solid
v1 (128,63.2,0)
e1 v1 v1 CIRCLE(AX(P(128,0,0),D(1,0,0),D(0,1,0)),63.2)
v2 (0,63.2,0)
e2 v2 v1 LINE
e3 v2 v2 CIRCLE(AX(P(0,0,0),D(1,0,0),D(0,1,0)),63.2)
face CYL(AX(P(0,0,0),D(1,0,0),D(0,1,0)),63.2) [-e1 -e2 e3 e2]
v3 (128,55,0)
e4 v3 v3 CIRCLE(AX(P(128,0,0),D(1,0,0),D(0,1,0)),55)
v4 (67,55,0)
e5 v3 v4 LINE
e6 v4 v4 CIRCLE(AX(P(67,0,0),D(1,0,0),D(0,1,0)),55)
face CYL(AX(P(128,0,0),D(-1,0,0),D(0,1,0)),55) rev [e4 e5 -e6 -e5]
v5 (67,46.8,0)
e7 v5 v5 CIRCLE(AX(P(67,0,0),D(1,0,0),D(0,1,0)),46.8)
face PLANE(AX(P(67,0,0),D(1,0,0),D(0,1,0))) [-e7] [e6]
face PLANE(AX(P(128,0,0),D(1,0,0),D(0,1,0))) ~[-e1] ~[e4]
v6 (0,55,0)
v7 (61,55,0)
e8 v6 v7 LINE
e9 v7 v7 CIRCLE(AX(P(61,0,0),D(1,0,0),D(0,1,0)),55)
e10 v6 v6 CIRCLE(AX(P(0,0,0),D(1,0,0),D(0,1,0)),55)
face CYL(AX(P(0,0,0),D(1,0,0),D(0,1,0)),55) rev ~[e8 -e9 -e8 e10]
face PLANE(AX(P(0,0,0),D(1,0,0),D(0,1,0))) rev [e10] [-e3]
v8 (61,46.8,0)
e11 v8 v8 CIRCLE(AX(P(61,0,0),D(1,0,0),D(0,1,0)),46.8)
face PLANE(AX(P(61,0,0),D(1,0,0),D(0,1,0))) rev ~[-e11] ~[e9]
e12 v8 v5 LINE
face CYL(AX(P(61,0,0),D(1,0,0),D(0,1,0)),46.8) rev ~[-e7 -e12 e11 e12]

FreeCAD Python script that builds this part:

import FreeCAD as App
import Part
import Sketcher
from FreeCAD import Vector
Q = App.Units.Quantity


def add_polygon(sketch, points):
    """Adds a closed chain of lines whose ends are joined by coincident constraints."""
    first, n = sketch.GeometryCount, len(points)
    for a, b in zip(points, points[1:] + points[:1]):
        sketch.addGeometry(Part.LineSegment(App.Vector(*a, 0), App.Vector(*b, 0)), False)
    for i in range(n):
        sketch.addConstraint(Sketcher.Constraint("Coincident", first + i, 2, first + (i + 1) % n, 1))

doc = App.newDocument("Part")
params = doc.addObject("Spreadsheet::Sheet", "Params")
for row, (alias, value) in enumerate([
    ("sketch1_width", "61 mm"),
    ("sketch1_width2", "6 mm"),
    ("sketch1_height", "8.2 mm"),
    ("revolution_angle", "360 deg"),
], start=1):
    params.set(f"A{row}", alias)
    params.set(f"B{row}", "=" + value)
    params.setAlias(f"B{row}", alias)

body = doc.addObject("PartDesign::Body", "Body")

sketch1 = body.newObject("Sketcher::SketchObject", "Sketch")
sketch1.AttachmentSupport = (doc.getObject("XY_Plane"), [""])
sketch1.MapMode = "FlatFace"
add_polygon(sketch1, [(0, 63), (0, 55), (61, 55), (61, 47), (67, 47), (67, 55), (128, 55), (128, 63)])
sketch1.addConstraint([
    Sketcher.Constraint("Vertical", 0),
    Sketcher.Constraint("Horizontal", 1),
    Sketcher.Constraint("Vertical", 2),
    Sketcher.Constraint("Horizontal", 3),
    Sketcher.Constraint("Vertical", 4),
    Sketcher.Constraint("Horizontal", 5),
    Sketcher.Constraint("Vertical", 6),
    Sketcher.Constraint("Horizontal", 7),
    Sketcher.Constraint("PointOnObject", 0, 2, -2),
    Sketcher.Constraint("Horizontal", 1, 2, 4, 2),
    Sketcher.Constraint("Equal", 1, 5),
    Sketcher.Constraint("Equal", 0, 2),
    Sketcher.Constraint("DistanceX", 1, 1, 1, 2, Q("61 mm")),
    Sketcher.Constraint("DistanceX", 3, 1, 3, 2, Q("6 mm")),
    Sketcher.Constraint("DistanceY", 0, 2, 0, 1, Q("8.2 mm")),
    Sketcher.Constraint("DistanceY", -1, 1, 0, 2, Q("55 mm")),
])
sketch1.setExpression("Constraints[20]", "Params.sketch1_width")
sketch1.setExpression("Constraints[21]", "Params.sketch1_width2")
sketch1.setExpression("Constraints[22]", "Params.sketch1_height")
revolution = body.newObject("PartDesign::Revolution", "Revolution")
revolution.Profile = sketch1
revolution.ReferenceAxis = (sketch1, ["H_Axis"])
revolution.setExpression("Angle", "Params.revolution_angle")

doc.recompute()
